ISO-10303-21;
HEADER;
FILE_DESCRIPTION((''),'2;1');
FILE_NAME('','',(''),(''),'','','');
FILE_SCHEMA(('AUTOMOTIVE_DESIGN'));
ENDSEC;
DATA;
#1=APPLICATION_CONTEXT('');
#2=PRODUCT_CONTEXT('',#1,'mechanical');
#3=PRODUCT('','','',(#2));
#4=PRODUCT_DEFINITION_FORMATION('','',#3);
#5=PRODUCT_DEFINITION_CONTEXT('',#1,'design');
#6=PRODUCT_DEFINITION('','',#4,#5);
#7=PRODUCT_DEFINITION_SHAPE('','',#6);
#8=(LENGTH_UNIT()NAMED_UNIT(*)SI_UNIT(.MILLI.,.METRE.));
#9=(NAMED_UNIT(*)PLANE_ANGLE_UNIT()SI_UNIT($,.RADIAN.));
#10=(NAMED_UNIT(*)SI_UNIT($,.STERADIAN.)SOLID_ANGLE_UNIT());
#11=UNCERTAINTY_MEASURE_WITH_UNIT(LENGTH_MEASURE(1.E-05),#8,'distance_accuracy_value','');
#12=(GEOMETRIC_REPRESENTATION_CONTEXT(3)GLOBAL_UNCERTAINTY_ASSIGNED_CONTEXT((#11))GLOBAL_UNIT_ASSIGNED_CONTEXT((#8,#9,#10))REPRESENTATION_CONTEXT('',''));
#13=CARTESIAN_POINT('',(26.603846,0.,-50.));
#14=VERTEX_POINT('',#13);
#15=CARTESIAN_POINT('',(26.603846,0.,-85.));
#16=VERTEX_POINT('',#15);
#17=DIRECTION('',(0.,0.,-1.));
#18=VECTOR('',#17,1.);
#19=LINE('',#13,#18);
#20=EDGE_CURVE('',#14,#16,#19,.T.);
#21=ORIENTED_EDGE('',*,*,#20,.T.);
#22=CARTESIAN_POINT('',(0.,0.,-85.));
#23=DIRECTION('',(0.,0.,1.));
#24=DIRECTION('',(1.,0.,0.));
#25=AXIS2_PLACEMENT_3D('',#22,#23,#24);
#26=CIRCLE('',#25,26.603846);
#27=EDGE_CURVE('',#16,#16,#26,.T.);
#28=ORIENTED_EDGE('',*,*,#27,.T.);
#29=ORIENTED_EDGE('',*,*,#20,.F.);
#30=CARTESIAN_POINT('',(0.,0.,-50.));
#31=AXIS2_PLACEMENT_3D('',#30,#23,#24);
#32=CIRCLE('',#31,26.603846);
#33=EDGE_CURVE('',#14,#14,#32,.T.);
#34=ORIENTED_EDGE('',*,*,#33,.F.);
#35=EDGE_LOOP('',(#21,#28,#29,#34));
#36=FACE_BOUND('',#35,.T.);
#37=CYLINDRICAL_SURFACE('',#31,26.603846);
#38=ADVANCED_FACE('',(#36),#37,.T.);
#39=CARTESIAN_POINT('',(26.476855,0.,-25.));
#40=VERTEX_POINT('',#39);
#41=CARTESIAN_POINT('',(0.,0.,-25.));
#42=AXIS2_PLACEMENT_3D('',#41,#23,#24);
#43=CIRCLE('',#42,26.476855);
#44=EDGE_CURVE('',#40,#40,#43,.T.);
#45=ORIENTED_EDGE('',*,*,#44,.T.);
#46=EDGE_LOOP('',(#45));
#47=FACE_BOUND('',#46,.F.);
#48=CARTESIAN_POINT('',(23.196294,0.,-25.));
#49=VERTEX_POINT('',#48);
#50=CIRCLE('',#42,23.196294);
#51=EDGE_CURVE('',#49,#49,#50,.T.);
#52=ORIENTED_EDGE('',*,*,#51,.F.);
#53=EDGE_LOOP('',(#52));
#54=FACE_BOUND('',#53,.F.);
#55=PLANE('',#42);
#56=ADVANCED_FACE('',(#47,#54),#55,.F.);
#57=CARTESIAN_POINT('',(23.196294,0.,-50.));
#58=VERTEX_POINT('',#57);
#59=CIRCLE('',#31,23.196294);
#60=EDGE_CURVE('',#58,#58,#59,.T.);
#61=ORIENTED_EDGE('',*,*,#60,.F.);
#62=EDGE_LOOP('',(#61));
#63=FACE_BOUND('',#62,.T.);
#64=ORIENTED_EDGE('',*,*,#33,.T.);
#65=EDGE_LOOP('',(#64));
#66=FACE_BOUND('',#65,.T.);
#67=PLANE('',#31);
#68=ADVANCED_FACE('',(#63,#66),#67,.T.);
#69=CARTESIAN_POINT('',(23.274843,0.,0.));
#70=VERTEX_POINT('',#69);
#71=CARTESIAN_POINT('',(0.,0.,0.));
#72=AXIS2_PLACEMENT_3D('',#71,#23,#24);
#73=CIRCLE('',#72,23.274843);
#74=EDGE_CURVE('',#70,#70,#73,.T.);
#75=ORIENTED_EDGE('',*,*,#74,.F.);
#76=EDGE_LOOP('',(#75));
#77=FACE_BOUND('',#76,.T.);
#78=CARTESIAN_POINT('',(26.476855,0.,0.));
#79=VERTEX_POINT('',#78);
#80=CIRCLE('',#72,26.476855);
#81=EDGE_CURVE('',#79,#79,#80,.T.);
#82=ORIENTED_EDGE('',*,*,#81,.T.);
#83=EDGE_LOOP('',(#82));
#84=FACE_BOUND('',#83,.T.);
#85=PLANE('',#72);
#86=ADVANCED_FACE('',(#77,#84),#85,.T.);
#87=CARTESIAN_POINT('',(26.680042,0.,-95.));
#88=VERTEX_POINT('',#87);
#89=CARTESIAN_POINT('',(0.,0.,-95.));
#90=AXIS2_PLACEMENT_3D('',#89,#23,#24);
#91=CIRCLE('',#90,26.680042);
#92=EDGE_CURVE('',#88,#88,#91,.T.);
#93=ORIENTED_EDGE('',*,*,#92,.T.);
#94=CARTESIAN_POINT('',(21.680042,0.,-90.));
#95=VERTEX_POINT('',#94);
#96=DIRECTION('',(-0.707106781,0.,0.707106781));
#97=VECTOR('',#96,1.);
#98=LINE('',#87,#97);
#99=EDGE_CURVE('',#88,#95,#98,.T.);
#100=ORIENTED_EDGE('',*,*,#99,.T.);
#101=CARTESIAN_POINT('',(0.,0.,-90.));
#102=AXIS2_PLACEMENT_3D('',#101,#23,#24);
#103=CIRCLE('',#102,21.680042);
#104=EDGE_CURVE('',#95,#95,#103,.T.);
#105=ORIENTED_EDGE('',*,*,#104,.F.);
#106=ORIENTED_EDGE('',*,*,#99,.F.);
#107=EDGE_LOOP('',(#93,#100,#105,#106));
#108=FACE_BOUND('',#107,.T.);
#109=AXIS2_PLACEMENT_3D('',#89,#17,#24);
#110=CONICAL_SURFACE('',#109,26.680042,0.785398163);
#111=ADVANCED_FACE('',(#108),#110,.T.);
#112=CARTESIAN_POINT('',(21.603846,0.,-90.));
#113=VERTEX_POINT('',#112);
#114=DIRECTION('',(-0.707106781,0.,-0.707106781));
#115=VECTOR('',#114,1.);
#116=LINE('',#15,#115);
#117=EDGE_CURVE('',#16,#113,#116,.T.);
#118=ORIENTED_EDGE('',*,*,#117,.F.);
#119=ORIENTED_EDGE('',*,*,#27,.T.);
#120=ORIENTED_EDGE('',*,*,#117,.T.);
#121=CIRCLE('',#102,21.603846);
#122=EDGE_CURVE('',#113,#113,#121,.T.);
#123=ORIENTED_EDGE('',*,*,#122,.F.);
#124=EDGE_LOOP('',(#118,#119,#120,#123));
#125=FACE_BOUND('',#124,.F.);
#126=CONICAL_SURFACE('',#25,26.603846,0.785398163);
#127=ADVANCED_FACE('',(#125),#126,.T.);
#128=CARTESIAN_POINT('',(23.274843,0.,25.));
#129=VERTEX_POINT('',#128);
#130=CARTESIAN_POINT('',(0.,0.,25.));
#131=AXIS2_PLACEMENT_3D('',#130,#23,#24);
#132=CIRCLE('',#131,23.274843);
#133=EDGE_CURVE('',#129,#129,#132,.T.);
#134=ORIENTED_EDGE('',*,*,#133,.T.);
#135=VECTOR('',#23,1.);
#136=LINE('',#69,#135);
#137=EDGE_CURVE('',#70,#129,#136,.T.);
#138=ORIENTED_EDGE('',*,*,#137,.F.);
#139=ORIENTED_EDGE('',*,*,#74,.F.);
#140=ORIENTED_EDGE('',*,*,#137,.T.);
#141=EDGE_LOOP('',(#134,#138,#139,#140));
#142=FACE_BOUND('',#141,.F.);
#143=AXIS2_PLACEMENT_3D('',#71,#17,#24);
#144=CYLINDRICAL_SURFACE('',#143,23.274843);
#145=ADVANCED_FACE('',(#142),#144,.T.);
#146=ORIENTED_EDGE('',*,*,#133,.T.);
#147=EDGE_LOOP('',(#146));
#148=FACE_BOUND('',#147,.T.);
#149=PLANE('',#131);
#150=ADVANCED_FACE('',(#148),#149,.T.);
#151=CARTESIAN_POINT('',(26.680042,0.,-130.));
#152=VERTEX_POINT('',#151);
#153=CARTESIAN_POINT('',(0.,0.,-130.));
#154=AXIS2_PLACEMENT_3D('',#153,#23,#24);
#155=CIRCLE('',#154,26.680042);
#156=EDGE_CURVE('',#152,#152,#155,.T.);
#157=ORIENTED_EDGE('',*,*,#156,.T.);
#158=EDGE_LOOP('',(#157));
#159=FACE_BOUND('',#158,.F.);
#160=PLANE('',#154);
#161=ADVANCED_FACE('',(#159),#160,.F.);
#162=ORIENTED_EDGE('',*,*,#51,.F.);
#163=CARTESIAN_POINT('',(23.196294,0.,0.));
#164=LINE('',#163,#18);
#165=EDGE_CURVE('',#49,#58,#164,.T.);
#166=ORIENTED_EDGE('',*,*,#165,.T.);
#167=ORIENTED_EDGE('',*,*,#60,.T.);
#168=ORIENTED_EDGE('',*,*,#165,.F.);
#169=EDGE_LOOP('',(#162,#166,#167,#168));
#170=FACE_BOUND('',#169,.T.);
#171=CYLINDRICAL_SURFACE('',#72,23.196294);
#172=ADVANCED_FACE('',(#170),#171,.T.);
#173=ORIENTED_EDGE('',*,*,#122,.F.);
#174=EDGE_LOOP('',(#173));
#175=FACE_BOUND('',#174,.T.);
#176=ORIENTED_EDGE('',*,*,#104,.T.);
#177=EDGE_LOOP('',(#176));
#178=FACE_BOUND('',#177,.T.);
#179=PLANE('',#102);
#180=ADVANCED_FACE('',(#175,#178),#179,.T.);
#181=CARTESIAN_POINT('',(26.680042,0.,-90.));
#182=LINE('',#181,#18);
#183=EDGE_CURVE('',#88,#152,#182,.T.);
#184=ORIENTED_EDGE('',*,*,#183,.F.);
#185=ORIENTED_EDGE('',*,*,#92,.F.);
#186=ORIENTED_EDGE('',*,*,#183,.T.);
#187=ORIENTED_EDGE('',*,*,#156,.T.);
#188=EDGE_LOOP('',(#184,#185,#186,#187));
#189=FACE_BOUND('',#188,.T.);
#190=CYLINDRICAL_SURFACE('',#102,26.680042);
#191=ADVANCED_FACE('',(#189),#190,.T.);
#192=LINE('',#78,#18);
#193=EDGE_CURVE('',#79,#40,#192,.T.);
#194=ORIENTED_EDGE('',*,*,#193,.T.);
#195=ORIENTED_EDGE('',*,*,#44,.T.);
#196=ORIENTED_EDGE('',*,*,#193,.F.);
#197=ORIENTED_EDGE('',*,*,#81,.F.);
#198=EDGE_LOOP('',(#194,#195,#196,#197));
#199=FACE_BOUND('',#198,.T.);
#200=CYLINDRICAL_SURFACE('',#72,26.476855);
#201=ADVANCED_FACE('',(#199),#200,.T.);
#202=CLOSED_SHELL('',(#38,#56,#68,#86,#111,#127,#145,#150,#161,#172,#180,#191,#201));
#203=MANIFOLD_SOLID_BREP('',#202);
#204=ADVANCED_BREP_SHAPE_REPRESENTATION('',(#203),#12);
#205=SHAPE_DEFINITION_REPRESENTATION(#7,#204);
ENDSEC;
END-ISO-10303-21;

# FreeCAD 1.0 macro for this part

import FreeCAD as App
import Part
import Sketcher
from FreeCAD import Vector
Q = App.Units.Quantity


def edges_at(feature, points):
    """Names of the edges that pass closest to the given points."""
    edges = feature.Shape.Edges
    near = lambda p: min(range(len(edges)), key=lambda i: edges[i].distToShape(Part.Vertex(*p))[0])
    return sorted({f"Edge{near(p) + 1}" for p in points})

doc = App.newDocument("Part")
body = doc.addObject("PartDesign::Body", "Body")

# Sketch on XY plane
sketch1 = body.newObject("Sketcher::SketchObject", "Sketch")
sketch1.AttachmentSupport = (doc.getObject("XY_Plane"), [""])
sketch1.MapMode = "FlatFace"
sketch1.addGeometry(Part.Circle(Vector(0, 0, 0), Vector(0, 0, 1), 23.274843), False)
sketch1.addConstraint([
    Sketcher.Constraint("Coincident", 0, 3, -1, 1),
    Sketcher.Constraint("Diameter", 0, Q("46.549686 mm")),
])
pad1 = body.newObject("PartDesign::Pad", "Pad")
pad1.Profile = sketch1
pad1.Length = 25

# Sketch on XY plane
sketch2 = body.newObject("Sketcher::SketchObject", "Sketch001")
sketch2.AttachmentSupport = (doc.getObject("XY_Plane"), [""])
sketch2.MapMode = "FlatFace"
sketch2.addGeometry(Part.Circle(Vector(0, 0, 0), Vector(0, 0, 1), 26.476855), False)
sketch2.addConstraint([
    Sketcher.Constraint("Coincident", 0, 3, -1, 1),
    Sketcher.Constraint("Diameter", 0, Q("52.95371 mm")),
])
pad2 = body.newObject("PartDesign::Pad", "Pad001")
pad2.Profile = sketch2
pad2.Length = 25
pad2.Reversed = True

# Sketch on XY plane
sketch3 = body.newObject("Sketcher::SketchObject", "Sketch002")
sketch3.AttachmentSupport = (doc.getObject("XY_Plane"), [""])
sketch3.MapMode = "FlatFace"
sketch3.addGeometry(Part.Circle(Vector(0, 0, 0), Vector(0, 0, 1), 23.196294), False)
sketch3.addConstraint([
    Sketcher.Constraint("Coincident", 0, 3, -1, 1),
    Sketcher.Constraint("Diameter", 0, Q("46.392588 mm")),
])
pad3 = body.newObject("PartDesign::Pad", "Pad002")
pad3.Profile = sketch3
pad3.Length = 50
pad3.Reversed = True

# Sketch on XY plane
sketch4 = body.newObject("Sketcher::SketchObject", "Sketch003")
sketch4.AttachmentSupport = (doc.getObject("XY_Plane"), [""])
sketch4.MapMode = "FlatFace"
sketch4.AttachmentOffset = App.Placement(Vector(0, 0, -50), App.Rotation())
sketch4.addGeometry(Part.Circle(Vector(0, 0, 0), Vector(0, 0, 1), 26.603846), False)
sketch4.addConstraint([
    Sketcher.Constraint("Coincident", 0, 3, -1, 1),
    Sketcher.Constraint("Diameter", 0, Q("53.207692 mm")),
])
pad4 = body.newObject("PartDesign::Pad", "Pad003")
pad4.Profile = sketch4
pad4.Length = 40
pad4.Reversed = True
doc.recompute()

chamfer = body.newObject("PartDesign::Chamfer", "Chamfer")
chamfer.Base = (pad4, edges_at(pad4, [(-26.604, 0, -90)]))
chamfer.Size = 5

# Sketch on XY plane
sketch5 = body.newObject("Sketcher::SketchObject", "Sketch004")
sketch5.AttachmentSupport = (doc.getObject("XY_Plane"), [""])
sketch5.MapMode = "FlatFace"
sketch5.AttachmentOffset = App.Placement(Vector(0, 0, -90), App.Rotation())
sketch5.addGeometry(Part.Circle(Vector(0, 0, 0), Vector(0, 0, 1), 26.680042), False)
sketch5.addConstraint([
    Sketcher.Constraint("Coincident", 0, 3, -1, 1),
    Sketcher.Constraint("Diameter", 0, Q("53.360084 mm")),
])
pad5 = body.newObject("PartDesign::Pad", "Pad004")
pad5.Profile = sketch5
pad5.Length = 40
pad5.Reversed = True
doc.recompute()

chamfer2 = body.newObject("PartDesign::Chamfer", "Chamfer001")
chamfer2.Base = (pad5, edges_at(pad5, [(-26.68, 0, -90)]))
chamfer2.Size = 5

doc.recompute()
